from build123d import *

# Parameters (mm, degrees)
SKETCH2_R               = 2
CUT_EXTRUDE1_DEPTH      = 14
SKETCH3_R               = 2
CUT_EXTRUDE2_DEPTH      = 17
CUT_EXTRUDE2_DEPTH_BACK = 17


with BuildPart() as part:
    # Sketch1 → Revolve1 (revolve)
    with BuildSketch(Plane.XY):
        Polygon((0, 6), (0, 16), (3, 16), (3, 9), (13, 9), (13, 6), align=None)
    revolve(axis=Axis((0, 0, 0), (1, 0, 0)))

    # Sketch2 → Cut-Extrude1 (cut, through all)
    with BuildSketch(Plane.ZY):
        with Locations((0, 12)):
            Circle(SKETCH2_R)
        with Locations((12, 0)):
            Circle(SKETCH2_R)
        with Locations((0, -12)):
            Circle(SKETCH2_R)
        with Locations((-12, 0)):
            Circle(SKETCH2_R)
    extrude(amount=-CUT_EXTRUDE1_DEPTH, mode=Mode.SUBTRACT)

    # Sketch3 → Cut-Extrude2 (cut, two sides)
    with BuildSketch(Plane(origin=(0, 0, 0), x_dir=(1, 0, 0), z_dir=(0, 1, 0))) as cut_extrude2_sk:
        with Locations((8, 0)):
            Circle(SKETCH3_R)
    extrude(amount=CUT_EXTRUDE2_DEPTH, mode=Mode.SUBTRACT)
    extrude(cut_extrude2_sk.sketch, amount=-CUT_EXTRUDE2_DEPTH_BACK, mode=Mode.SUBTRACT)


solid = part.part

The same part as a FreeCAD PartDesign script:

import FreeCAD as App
import Part
import Sketcher
Q = App.Units.Quantity

doc = App.newDocument("Part")
body = doc.addObject("PartDesign::Body", "Body")

# Sketch on XY plane
sketch1 = body.newObject("Sketcher::SketchObject", "Sketch")
sketch1.AttachmentSupport = (doc.getObject("XY_Plane"), [""])
sketch1.MapMode = "FlatFace"
sketch1.addGeometry(Part.LineSegment(App.Vector(0, 16, 0), App.Vector(0, 6, 0)), False)
sketch1.addGeometry(Part.LineSegment(App.Vector(0, 6, 0), App.Vector(13, 6, 0)), False)
sketch1.addGeometry(Part.LineSegment(App.Vector(13, 6, 0), App.Vector(13, 9, 0)), False)
sketch1.addGeometry(Part.LineSegment(App.Vector(13, 9, 0), App.Vector(3, 9, 0)), False)
sketch1.addGeometry(Part.LineSegment(App.Vector(3, 9, 0), App.Vector(3, 16, 0)), False)
sketch1.addGeometry(Part.LineSegment(App.Vector(3, 16, 0), App.Vector(0, 16, 0)), False)
sketch1.addConstraint(Sketcher.Constraint("Coincident", 0, 2, 1, 1))
sketch1.addConstraint(Sketcher.Constraint("Coincident", 1, 2, 2, 1))
sketch1.addConstraint(Sketcher.Constraint("Coincident", 2, 2, 3, 1))
sketch1.addConstraint(Sketcher.Constraint("Coincident", 3, 2, 4, 1))
sketch1.addConstraint(Sketcher.Constraint("Coincident", 4, 2, 5, 1))
sketch1.addConstraint(Sketcher.Constraint("Coincident", 5, 2, 0, 1))
sketch1.addConstraint(Sketcher.Constraint("Vertical", 0))
sketch1.addConstraint(Sketcher.Constraint("Horizontal", 1))
sketch1.addConstraint(Sketcher.Constraint("Vertical", 2))
sketch1.addConstraint(Sketcher.Constraint("Horizontal", 3))
sketch1.addConstraint(Sketcher.Constraint("Vertical", 4))
sketch1.addConstraint(Sketcher.Constraint("Horizontal", 5))
sketch1.addConstraint(Sketcher.Constraint("PointOnObject", 0, 2, -2))
sketch1.addConstraint(Sketcher.Constraint("Equal", 3, 0))
sketch1.addConstraint(Sketcher.Constraint("Equal", 5, 2))
sketch1.addConstraint(Sketcher.Constraint("DistanceX", 1, 1, 1, 2, Q("13 mm")))
sketch1.addConstraint(Sketcher.Constraint("DistanceX", 3, 2, 3, 1, Q("10 mm")))
sketch1.addConstraint(Sketcher.Constraint("DistanceY", -1, 1, 0, 2, Q("6 mm")))
revolution = body.newObject("PartDesign::Revolution", "Revolution")
revolution.Profile = sketch1
revolution.ReferenceAxis = (sketch1, ["H_Axis"])
revolution.Angle = 360

# Sketch on YZ plane
sketch2 = body.newObject("Sketcher::SketchObject", "Sketch001")
sketch2.AttachmentSupport = (doc.getObject("YZ_Plane"), [""])
sketch2.MapMode = "FlatFace"
sketch2.addGeometry(Part.Circle(App.Vector(12, 0, 0), App.Vector(0, 0, 1), 2), False)
sketch2.addGeometry(Part.Circle(App.Vector(0, 12, 0), App.Vector(0, 0, 1), 2), False)
sketch2.addGeometry(Part.Circle(App.Vector(-12, 0, 0), App.Vector(0, 0, 1), 2), False)
sketch2.addGeometry(Part.Circle(App.Vector(0, -12, 0), App.Vector(0, 0, 1), 2), False)
sketch2.addConstraint(Sketcher.Constraint("Equal", 0, 1))
sketch2.addConstraint(Sketcher.Constraint("Equal", 1, 2))
sketch2.addConstraint(Sketcher.Constraint("Equal", 2, 3))
sketch2.addConstraint(Sketcher.Constraint("Symmetric", 0, 3, 2, 3, -1, 1))
sketch2.addConstraint(Sketcher.Constraint("Symmetric", 1, 3, 3, 3, -1, 1))
sketch2.addConstraint(Sketcher.Constraint("PointOnObject", 0, 3, -1))
sketch2.addConstraint(Sketcher.Constraint("PointOnObject", 1, 3, -2))
sketch2.addConstraint(Sketcher.Constraint("Diameter", 0, Q("4 mm")))
sketch2.addConstraint(Sketcher.Constraint("DistanceX", -1, 1, 0, 3, Q("12 mm")))
sketch2.addConstraint(Sketcher.Constraint("DistanceY", -1, 1, 1, 3, Q("12 mm")))
pocket1 = body.newObject("PartDesign::Pocket", "Pocket")
pocket1.Profile = sketch2
pocket1.Type = "ThroughAll"
pocket1.Reversed = True

# Sketch on XZ plane
sketch3 = body.newObject("Sketcher::SketchObject", "Sketch002")
sketch3.AttachmentSupport = (doc.getObject("XZ_Plane"), [""])
sketch3.MapMode = "FlatFace"
sketch3.addGeometry(Part.Circle(App.Vector(8, 0, 0), App.Vector(0, 0, 1), 2), False)
sketch3.addConstraint(Sketcher.Constraint("PointOnObject", 0, 3, -1))
sketch3.addConstraint(Sketcher.Constraint("Diameter", 0, Q("4 mm")))
sketch3.addConstraint(Sketcher.Constraint("DistanceX", -1, 1, 0, 3, Q("8 mm")))
pocket2 = body.newObject("PartDesign::Pocket", "Pocket001")
pocket2.Profile = sketch3
pocket2.Type = "ThroughAll"
pocket2.Midplane = True

doc.recompute()
